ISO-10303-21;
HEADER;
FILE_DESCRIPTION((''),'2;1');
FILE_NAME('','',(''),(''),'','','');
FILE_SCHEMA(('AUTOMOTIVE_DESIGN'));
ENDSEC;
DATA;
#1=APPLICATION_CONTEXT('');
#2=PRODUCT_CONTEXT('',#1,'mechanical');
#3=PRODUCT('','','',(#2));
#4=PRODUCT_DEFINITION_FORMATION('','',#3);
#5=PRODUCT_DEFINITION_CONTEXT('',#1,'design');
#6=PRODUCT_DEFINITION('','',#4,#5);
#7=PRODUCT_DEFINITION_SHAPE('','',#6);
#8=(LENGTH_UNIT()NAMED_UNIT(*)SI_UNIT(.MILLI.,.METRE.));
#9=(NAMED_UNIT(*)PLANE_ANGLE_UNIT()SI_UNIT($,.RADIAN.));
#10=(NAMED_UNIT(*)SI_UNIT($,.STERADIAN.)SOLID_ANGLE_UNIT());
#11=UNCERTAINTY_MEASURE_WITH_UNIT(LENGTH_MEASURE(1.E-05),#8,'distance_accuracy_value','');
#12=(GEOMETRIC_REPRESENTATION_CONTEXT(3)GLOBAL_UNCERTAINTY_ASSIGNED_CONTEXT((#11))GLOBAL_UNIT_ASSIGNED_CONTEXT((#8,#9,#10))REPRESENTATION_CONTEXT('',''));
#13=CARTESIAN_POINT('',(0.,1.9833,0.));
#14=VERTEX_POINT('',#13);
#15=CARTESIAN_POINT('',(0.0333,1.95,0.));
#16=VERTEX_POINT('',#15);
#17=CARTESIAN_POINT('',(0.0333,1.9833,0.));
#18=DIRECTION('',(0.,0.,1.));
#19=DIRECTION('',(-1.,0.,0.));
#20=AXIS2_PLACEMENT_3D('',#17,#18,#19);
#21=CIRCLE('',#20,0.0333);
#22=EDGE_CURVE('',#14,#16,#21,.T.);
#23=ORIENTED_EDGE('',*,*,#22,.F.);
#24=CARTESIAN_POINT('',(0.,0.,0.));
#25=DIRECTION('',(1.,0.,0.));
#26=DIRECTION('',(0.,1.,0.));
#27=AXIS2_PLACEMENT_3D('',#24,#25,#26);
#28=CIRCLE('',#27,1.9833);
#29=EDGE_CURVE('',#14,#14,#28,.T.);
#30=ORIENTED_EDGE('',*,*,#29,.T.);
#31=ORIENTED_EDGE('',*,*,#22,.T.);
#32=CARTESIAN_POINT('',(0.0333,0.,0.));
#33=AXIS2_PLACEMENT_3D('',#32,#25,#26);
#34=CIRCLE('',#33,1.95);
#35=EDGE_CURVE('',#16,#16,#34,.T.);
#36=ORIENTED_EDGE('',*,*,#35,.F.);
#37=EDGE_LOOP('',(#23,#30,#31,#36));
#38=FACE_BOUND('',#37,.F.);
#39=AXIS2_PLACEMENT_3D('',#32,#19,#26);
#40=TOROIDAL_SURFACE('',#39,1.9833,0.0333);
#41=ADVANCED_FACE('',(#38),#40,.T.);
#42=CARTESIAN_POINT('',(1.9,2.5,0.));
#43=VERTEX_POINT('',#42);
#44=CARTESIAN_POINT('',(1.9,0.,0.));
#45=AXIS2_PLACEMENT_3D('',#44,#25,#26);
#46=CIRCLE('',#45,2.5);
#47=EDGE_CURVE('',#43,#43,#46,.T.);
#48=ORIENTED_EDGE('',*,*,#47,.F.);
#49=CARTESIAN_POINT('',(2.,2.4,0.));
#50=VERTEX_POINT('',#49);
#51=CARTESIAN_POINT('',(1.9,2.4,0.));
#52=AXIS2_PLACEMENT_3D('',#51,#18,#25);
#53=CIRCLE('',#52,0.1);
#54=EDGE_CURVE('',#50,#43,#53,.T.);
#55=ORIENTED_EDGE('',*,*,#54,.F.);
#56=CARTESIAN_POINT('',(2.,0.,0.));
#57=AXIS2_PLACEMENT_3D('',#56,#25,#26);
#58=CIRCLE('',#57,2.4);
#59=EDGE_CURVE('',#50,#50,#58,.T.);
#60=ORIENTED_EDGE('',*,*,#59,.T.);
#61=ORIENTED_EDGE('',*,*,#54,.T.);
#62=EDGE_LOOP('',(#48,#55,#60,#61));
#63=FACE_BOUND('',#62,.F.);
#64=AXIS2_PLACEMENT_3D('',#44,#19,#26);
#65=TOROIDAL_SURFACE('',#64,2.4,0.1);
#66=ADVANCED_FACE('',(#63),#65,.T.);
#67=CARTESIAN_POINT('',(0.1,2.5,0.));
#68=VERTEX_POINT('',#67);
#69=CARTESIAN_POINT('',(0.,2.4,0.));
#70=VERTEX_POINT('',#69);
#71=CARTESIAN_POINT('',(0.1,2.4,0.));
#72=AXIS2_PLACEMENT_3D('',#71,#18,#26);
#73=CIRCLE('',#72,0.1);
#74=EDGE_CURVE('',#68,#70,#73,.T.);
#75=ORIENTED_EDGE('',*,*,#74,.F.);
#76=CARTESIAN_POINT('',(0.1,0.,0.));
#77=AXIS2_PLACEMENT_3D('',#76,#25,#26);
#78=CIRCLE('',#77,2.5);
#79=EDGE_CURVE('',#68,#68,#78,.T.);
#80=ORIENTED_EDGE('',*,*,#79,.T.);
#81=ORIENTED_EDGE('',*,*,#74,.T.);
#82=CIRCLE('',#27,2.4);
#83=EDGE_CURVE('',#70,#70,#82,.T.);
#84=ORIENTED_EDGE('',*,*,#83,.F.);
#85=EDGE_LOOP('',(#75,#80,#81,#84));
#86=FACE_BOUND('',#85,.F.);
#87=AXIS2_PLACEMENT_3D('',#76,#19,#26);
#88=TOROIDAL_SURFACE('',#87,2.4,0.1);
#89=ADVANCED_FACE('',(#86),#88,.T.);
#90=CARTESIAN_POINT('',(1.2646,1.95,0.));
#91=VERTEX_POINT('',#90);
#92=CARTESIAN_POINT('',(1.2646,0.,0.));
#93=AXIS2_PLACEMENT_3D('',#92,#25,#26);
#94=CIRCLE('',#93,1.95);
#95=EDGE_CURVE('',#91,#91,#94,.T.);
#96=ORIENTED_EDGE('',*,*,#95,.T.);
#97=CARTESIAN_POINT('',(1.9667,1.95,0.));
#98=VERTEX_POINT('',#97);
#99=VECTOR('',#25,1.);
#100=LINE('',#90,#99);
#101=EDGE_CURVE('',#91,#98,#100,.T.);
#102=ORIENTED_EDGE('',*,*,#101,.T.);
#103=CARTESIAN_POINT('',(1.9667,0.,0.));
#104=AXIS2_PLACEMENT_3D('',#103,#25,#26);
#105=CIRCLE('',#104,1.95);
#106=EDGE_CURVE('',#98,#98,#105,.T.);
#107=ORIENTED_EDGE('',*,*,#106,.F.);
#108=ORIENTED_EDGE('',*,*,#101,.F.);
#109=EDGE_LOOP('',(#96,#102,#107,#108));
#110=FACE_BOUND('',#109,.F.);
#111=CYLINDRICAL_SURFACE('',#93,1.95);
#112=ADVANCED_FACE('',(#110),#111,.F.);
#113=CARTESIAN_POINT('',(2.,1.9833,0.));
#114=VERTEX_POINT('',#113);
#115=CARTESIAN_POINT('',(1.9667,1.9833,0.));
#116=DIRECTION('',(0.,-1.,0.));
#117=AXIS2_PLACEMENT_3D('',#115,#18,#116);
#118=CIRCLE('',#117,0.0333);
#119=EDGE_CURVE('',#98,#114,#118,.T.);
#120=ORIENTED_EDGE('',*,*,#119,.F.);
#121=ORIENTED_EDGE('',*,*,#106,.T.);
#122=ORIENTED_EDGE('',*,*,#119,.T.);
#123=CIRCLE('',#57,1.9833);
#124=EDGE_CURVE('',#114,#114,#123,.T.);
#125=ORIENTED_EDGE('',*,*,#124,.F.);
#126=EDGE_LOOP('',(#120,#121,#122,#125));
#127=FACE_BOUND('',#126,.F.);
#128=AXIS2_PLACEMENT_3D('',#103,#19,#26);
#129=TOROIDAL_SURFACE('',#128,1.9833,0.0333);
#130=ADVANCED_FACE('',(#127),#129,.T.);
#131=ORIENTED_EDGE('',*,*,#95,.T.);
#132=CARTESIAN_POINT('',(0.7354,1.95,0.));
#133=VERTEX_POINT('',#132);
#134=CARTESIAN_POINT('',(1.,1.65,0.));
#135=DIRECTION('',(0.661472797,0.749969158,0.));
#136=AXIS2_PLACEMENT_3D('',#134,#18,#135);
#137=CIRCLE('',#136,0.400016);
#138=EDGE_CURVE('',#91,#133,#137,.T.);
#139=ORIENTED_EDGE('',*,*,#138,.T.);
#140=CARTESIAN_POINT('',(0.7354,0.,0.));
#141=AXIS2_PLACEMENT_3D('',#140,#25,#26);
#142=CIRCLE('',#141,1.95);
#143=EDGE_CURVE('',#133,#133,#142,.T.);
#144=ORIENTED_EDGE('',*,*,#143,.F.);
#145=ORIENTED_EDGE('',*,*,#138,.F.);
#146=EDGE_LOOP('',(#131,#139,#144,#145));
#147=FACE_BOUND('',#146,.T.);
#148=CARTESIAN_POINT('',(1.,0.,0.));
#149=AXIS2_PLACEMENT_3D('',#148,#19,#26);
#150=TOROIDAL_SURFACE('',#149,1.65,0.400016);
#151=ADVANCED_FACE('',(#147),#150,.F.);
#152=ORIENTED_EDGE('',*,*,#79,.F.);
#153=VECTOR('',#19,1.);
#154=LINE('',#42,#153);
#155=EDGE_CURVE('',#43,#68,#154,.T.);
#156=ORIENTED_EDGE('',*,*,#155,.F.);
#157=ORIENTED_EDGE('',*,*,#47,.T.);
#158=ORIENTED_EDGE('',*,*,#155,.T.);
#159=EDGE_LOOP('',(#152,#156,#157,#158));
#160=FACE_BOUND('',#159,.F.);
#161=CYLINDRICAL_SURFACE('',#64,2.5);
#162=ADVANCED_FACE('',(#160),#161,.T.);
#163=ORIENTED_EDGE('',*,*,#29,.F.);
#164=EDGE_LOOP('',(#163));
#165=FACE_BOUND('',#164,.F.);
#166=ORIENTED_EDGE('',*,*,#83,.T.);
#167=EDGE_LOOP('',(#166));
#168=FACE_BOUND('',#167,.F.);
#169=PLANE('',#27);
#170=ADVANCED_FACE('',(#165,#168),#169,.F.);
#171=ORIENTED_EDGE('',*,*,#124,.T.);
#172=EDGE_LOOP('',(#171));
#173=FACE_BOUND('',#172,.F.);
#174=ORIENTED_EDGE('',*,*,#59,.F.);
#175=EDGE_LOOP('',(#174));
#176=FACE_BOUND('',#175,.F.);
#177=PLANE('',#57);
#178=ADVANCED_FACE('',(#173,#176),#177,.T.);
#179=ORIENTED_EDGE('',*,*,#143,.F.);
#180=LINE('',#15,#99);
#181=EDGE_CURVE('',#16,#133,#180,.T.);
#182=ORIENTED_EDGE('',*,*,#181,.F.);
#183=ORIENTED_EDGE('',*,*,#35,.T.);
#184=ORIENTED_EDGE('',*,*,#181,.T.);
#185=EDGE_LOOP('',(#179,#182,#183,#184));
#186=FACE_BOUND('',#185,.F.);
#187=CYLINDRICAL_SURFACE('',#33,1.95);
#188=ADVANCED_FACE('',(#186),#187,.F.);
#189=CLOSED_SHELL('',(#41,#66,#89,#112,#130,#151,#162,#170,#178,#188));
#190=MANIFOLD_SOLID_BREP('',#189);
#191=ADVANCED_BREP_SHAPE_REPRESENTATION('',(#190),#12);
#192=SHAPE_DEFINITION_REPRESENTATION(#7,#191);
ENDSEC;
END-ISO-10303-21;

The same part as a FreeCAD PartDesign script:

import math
import FreeCAD as App
import Part
import Sketcher
from FreeCAD import Vector
Q = App.Units.Quantity

doc = App.newDocument("Part")
body = doc.addObject("PartDesign::Body", "Body")

sketch1 = doc.addObject("Sketcher::SketchObject", "Sketch")
body.addObject(sketch1)
sketch1.AttachmentSupport = (doc.XY_Plane, [""])
sketch1.MapMode = "FlatFace"
sketch1.addGeometry(Part.LineSegment(Vector(0, 2.4, 0), Vector(0, 1.9833, 0)), False)
sketch1.addGeometry(Part.ArcOfCircle(Part.Circle(Vector(0.0333, 1.9833, 0), Vector(0, 0, 1), 0.0333), math.radians(180), math.radians(270)), False)
sketch1.addGeometry(Part.LineSegment(Vector(0.0333, 1.95, 0), Vector(0.7354, 1.95, 0)), False)
sketch1.addGeometry(Part.ArcOfCircle(Part.Circle(Vector(1, 1.65, 0), Vector(0, 0, 1), 0.400016), math.radians(48.587706), math.radians(131.412294)), False)
sketch1.addGeometry(Part.LineSegment(Vector(1.2646, 1.95, 0), Vector(1.9667, 1.95, 0)), False)
sketch1.addGeometry(Part.ArcOfCircle(Part.Circle(Vector(1.9667, 1.9833, 0), Vector(0, 0, 1), 0.0333), math.radians(-90), math.radians(0)), False)
sketch1.addGeometry(Part.LineSegment(Vector(2, 1.9833, 0), Vector(2, 2.4, 0)), False)
sketch1.addGeometry(Part.ArcOfCircle(Part.Circle(Vector(1.9, 2.4, 0), Vector(0, 0, 1), 0.1), math.radians(0), math.radians(90)), False)
sketch1.addGeometry(Part.LineSegment(Vector(1.9, 2.5, 0), Vector(0.1, 2.5, 0)), False)
sketch1.addGeometry(Part.ArcOfCircle(Part.Circle(Vector(0.1, 2.4, 0), Vector(0, 0, 1), 0.1), math.radians(90), math.radians(180)), False)
sketch1.addConstraint(Sketcher.Constraint("Tangent", 0, 2, 1, 1))
sketch1.addConstraint(Sketcher.Constraint("Tangent", 1, 2, 2, 1))
sketch1.addConstraint(Sketcher.Constraint("Coincident", 2, 2, 3, 2))
sketch1.addConstraint(Sketcher.Constraint("Coincident", 3, 1, 4, 1))
sketch1.addConstraint(Sketcher.Constraint("Tangent", 4, 2, 5, 1))
sketch1.addConstraint(Sketcher.Constraint("Tangent", 5, 2, 6, 1))
sketch1.addConstraint(Sketcher.Constraint("Tangent", 6, 2, 7, 1))
sketch1.addConstraint(Sketcher.Constraint("Tangent", 7, 2, 8, 1))
sketch1.addConstraint(Sketcher.Constraint("Tangent", 8, 2, 9, 1))
sketch1.addConstraint(Sketcher.Constraint("Tangent", 9, 2, 0, 1))
sketch1.addConstraint(Sketcher.Constraint("Vertical", 0))
sketch1.addConstraint(Sketcher.Constraint("Horizontal", 2))
sketch1.addConstraint(Sketcher.Constraint("Horizontal", 4))
sketch1.addConstraint(Sketcher.Constraint("Vertical", 6))
sketch1.addConstraint(Sketcher.Constraint("Horizontal", 8))
sketch1.addConstraint(Sketcher.Constraint("Equal", 1, 5))
sketch1.addConstraint(Sketcher.Constraint("Equal", 7, 9))
sketch1.addConstraint(Sketcher.Constraint("PointOnObject", 0, 2, -2))
sketch1.addConstraint(Sketcher.Constraint("Horizontal", 1, 3, 5, 3))
sketch1.addConstraint(Sketcher.Constraint("Equal", 2, 4))
sketch1.addConstraint(Sketcher.Constraint("Radius", 3, Q("0.4 mm")))
sketch1.addConstraint(Sketcher.Constraint("Radius", 7, Q("0.1 mm")))
sketch1.addConstraint(Sketcher.Constraint("DistanceX", 8, 2, 8, 1, Q("1.8 mm")))
sketch1.addConstraint(Sketcher.Constraint("DistanceY", -1, 1, 7, 3, Q("2.4 mm")))
sketch1.addConstraint(Sketcher.Constraint("Radius", 1, Q("0.0333 mm")))
sketch1.addConstraint(Sketcher.Constraint("DistanceY", 3, 3, 1, 2, Q("0.3 mm")))
sketch1.addConstraint(Sketcher.Constraint("DistanceY", -1, 1, 3, 3, Q("1.65 mm")))
revolution = doc.addObject("PartDesign::Revolution", "Revolution")
body.addObject(revolution)
revolution.Profile = sketch1
revolution.ReferenceAxis = (sketch1, ["H_Axis"])
revolution.Angle = 360

doc.recompute()
